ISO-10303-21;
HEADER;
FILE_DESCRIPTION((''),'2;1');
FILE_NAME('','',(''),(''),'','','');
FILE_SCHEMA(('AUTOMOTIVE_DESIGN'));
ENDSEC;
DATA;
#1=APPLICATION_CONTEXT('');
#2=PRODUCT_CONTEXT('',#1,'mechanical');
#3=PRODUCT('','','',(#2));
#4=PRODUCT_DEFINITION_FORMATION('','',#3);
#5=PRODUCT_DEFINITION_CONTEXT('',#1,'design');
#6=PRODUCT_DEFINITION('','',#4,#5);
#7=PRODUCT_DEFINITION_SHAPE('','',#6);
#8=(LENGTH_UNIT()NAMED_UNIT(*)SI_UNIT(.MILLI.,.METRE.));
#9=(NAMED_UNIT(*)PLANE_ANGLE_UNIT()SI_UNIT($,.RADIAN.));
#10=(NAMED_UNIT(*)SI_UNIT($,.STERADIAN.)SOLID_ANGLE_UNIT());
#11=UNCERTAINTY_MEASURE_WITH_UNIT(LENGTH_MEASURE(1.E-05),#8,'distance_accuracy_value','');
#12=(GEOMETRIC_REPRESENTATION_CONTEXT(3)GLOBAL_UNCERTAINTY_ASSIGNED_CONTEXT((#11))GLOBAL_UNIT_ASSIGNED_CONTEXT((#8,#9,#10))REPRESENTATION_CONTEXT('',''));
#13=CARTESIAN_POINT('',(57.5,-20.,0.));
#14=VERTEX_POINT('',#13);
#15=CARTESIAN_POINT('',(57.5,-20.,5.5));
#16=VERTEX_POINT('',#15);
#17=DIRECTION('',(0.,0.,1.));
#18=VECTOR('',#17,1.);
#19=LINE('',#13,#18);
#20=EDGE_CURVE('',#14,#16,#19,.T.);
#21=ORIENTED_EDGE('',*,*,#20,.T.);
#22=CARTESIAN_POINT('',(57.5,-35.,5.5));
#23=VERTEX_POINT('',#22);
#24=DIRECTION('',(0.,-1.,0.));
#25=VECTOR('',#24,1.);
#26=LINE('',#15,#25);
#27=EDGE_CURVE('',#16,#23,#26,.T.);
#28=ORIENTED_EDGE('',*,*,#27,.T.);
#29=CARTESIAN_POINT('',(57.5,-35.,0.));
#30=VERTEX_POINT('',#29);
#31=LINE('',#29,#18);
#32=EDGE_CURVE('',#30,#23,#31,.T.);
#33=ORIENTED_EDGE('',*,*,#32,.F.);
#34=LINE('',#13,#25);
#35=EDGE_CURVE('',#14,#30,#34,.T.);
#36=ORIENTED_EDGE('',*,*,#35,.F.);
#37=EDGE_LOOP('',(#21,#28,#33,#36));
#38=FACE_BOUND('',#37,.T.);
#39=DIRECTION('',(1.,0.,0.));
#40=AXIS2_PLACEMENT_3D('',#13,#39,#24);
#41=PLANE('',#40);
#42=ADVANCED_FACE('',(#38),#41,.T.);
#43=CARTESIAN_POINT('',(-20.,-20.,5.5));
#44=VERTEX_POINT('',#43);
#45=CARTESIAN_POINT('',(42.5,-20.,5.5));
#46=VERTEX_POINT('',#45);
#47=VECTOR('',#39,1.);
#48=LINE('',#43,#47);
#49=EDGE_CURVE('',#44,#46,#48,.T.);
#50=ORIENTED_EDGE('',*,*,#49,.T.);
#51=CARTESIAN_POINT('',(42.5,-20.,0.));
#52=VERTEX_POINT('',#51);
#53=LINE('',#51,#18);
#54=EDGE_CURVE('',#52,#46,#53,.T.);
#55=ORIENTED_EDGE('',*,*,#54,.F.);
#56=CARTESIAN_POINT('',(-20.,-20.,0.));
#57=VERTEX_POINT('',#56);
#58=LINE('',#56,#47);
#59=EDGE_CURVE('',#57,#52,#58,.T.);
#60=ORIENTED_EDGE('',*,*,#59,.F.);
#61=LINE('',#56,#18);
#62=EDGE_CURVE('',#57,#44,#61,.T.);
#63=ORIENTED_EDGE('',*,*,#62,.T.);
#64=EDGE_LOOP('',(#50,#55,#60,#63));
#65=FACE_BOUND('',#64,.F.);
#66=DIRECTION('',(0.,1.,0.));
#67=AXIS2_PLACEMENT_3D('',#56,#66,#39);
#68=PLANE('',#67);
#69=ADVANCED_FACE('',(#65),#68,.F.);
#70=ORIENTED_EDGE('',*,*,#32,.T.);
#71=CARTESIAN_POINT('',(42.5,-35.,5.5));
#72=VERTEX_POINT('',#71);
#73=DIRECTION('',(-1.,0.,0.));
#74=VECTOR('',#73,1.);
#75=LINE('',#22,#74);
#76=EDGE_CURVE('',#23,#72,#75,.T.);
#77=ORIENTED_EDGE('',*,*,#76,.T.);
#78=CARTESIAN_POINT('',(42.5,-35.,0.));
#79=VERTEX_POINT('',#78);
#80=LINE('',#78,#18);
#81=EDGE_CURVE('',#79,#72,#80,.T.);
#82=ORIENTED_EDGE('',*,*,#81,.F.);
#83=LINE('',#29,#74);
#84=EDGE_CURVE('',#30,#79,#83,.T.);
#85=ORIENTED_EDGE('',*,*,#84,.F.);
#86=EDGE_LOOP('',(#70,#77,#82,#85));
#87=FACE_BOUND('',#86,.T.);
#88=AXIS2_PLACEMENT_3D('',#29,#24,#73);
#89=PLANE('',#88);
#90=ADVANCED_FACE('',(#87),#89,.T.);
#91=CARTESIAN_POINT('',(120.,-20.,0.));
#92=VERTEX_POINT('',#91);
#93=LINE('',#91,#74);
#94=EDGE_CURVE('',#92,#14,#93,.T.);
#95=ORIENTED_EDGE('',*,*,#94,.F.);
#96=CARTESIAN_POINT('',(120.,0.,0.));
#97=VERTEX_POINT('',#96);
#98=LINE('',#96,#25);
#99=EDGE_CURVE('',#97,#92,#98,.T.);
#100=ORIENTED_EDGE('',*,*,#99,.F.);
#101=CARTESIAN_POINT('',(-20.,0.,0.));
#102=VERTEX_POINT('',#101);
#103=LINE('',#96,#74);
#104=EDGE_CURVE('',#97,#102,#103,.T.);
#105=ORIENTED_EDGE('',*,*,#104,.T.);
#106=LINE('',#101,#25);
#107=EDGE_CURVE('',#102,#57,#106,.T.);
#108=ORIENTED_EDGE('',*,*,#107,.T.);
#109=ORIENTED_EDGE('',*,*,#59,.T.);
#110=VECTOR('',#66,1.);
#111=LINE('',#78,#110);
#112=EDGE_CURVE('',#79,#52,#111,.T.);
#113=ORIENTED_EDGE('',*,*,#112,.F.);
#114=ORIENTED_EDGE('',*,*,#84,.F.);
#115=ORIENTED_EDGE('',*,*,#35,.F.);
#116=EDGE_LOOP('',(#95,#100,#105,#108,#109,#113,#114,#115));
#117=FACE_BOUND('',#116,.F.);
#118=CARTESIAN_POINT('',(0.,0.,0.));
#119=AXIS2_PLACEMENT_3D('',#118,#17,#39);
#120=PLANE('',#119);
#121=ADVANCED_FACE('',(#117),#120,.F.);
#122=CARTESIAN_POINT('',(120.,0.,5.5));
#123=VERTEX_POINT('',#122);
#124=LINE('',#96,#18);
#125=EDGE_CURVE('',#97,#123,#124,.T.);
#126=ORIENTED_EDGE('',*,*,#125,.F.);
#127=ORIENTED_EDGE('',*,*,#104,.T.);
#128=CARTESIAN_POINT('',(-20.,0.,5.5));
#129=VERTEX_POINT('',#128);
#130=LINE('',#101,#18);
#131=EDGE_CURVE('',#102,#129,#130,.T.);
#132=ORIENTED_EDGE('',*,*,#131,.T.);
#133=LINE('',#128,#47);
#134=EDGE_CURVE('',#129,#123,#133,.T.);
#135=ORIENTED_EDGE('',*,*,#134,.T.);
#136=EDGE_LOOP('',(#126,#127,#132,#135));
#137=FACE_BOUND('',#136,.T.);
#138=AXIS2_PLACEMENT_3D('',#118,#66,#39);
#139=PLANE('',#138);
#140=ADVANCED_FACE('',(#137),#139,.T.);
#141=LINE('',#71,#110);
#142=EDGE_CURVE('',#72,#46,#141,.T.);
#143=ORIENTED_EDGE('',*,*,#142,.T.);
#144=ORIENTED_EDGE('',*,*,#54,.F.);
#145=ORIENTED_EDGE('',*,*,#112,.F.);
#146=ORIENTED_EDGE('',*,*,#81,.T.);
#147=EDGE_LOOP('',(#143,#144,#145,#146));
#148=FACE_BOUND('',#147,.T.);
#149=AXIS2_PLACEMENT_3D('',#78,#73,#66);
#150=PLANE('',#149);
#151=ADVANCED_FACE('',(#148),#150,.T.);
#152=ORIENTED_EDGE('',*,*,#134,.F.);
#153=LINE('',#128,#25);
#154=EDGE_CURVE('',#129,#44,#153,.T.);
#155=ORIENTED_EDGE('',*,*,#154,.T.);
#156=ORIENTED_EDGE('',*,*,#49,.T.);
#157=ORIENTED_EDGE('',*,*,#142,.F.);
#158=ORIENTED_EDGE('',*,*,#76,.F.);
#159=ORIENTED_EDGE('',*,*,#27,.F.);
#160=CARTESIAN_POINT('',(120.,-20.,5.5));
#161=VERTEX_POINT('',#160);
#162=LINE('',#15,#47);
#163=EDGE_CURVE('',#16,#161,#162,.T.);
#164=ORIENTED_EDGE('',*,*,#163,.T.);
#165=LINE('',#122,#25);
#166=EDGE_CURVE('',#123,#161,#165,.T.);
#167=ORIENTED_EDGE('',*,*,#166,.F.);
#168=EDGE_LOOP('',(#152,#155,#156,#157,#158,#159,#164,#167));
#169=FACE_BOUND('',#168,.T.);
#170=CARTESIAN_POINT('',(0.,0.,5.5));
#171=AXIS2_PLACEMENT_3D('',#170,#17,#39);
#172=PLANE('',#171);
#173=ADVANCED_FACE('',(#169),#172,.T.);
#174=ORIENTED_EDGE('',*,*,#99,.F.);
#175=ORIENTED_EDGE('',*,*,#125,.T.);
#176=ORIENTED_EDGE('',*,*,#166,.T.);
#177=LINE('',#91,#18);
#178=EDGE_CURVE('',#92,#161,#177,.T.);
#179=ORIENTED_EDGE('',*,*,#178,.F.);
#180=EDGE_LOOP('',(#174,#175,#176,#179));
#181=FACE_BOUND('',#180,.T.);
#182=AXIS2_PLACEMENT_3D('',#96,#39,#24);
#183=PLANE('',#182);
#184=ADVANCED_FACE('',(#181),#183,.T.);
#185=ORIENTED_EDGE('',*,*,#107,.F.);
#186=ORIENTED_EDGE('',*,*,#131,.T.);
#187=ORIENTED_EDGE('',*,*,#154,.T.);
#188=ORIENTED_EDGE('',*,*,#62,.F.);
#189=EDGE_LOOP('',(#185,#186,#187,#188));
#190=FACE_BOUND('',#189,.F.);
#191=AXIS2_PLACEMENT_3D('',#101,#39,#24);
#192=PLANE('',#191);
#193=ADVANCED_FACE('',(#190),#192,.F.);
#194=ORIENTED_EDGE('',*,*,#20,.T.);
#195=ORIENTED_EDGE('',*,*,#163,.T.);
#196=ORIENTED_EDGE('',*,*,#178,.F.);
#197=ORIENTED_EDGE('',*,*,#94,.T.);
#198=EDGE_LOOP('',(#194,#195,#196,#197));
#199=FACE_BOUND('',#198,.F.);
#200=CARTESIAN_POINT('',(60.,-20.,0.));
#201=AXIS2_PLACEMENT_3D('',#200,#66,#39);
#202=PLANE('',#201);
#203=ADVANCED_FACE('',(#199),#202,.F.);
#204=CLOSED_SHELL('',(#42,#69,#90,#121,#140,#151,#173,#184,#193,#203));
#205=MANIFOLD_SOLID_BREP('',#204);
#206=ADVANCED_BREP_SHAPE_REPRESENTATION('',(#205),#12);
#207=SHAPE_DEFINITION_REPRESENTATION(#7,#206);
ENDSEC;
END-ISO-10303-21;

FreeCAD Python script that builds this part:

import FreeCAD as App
import Part
import Sketcher
from FreeCAD import Vector
Q = App.Units.Quantity


def add_polygon(sketch, points):
    """Adds a closed chain of lines whose ends are joined by coincident constraints."""
    first, n = sketch.GeometryCount, len(points)
    for a, b in zip(points, points[1:] + points[:1]):
        sketch.addGeometry(Part.LineSegment(App.Vector(*a, 0), App.Vector(*b, 0)), False)
    for i in range(n):
        sketch.addConstraint(Sketcher.Constraint("Coincident", first + i, 2, first + (i + 1) % n, 1))

doc = App.newDocument("Part")
body = doc.addObject("PartDesign::Body", "Body")

sketch1 = body.newObject("Sketcher::SketchObject", "Sketch")
sketch1.AttachmentSupport = (doc.getObject("XY_Plane"), [""])
sketch1.MapMode = "FlatFace"
add_polygon(sketch1, [(-20, 0), (-20, -20), (42, -20), (42, -35), (58, -35), (58, -20), (120, -20), (120, 0)])
sketch1.addConstraint(Sketcher.Constraint("Vertical", 0))
sketch1.addConstraint(Sketcher.Constraint("Horizontal", 1))
sketch1.addConstraint(Sketcher.Constraint("Vertical", 2))
sketch1.addConstraint(Sketcher.Constraint("Horizontal", 3))
sketch1.addConstraint(Sketcher.Constraint("Vertical", 4))
sketch1.addConstraint(Sketcher.Constraint("Horizontal", 5))
sketch1.addConstraint(Sketcher.Constraint("Vertical", 6))
sketch1.addConstraint(Sketcher.Constraint("Horizontal", 7))
sketch1.addConstraint(Sketcher.Constraint("PointOnObject", 6, 2, -1))
sketch1.addConstraint(Sketcher.Constraint("Horizontal", 1, 2, 4, 2))
sketch1.addConstraint(Sketcher.Constraint("Equal", 1, 5))
sketch1.addConstraint(Sketcher.Constraint("Equal", 3, 2))
sketch1.addConstraint(Sketcher.Constraint("DistanceX", 3, 1, 3, 2, Q("15 mm")))
sketch1.addConstraint(Sketcher.Constraint("DistanceX", 7, 2, 7, 1, Q("140 mm")))
sketch1.addConstraint(Sketcher.Constraint("DistanceY", 0, 2, 0, 1, Q("20 mm")))
sketch1.addConstraint(Sketcher.Constraint("DistanceX", 0, 2, -1, 1, Q("20 mm")))
pad1 = body.newObject("PartDesign::Pad", "Pad")
pad1.Profile = sketch1
pad1.Length = 5.5

doc.recompute()
